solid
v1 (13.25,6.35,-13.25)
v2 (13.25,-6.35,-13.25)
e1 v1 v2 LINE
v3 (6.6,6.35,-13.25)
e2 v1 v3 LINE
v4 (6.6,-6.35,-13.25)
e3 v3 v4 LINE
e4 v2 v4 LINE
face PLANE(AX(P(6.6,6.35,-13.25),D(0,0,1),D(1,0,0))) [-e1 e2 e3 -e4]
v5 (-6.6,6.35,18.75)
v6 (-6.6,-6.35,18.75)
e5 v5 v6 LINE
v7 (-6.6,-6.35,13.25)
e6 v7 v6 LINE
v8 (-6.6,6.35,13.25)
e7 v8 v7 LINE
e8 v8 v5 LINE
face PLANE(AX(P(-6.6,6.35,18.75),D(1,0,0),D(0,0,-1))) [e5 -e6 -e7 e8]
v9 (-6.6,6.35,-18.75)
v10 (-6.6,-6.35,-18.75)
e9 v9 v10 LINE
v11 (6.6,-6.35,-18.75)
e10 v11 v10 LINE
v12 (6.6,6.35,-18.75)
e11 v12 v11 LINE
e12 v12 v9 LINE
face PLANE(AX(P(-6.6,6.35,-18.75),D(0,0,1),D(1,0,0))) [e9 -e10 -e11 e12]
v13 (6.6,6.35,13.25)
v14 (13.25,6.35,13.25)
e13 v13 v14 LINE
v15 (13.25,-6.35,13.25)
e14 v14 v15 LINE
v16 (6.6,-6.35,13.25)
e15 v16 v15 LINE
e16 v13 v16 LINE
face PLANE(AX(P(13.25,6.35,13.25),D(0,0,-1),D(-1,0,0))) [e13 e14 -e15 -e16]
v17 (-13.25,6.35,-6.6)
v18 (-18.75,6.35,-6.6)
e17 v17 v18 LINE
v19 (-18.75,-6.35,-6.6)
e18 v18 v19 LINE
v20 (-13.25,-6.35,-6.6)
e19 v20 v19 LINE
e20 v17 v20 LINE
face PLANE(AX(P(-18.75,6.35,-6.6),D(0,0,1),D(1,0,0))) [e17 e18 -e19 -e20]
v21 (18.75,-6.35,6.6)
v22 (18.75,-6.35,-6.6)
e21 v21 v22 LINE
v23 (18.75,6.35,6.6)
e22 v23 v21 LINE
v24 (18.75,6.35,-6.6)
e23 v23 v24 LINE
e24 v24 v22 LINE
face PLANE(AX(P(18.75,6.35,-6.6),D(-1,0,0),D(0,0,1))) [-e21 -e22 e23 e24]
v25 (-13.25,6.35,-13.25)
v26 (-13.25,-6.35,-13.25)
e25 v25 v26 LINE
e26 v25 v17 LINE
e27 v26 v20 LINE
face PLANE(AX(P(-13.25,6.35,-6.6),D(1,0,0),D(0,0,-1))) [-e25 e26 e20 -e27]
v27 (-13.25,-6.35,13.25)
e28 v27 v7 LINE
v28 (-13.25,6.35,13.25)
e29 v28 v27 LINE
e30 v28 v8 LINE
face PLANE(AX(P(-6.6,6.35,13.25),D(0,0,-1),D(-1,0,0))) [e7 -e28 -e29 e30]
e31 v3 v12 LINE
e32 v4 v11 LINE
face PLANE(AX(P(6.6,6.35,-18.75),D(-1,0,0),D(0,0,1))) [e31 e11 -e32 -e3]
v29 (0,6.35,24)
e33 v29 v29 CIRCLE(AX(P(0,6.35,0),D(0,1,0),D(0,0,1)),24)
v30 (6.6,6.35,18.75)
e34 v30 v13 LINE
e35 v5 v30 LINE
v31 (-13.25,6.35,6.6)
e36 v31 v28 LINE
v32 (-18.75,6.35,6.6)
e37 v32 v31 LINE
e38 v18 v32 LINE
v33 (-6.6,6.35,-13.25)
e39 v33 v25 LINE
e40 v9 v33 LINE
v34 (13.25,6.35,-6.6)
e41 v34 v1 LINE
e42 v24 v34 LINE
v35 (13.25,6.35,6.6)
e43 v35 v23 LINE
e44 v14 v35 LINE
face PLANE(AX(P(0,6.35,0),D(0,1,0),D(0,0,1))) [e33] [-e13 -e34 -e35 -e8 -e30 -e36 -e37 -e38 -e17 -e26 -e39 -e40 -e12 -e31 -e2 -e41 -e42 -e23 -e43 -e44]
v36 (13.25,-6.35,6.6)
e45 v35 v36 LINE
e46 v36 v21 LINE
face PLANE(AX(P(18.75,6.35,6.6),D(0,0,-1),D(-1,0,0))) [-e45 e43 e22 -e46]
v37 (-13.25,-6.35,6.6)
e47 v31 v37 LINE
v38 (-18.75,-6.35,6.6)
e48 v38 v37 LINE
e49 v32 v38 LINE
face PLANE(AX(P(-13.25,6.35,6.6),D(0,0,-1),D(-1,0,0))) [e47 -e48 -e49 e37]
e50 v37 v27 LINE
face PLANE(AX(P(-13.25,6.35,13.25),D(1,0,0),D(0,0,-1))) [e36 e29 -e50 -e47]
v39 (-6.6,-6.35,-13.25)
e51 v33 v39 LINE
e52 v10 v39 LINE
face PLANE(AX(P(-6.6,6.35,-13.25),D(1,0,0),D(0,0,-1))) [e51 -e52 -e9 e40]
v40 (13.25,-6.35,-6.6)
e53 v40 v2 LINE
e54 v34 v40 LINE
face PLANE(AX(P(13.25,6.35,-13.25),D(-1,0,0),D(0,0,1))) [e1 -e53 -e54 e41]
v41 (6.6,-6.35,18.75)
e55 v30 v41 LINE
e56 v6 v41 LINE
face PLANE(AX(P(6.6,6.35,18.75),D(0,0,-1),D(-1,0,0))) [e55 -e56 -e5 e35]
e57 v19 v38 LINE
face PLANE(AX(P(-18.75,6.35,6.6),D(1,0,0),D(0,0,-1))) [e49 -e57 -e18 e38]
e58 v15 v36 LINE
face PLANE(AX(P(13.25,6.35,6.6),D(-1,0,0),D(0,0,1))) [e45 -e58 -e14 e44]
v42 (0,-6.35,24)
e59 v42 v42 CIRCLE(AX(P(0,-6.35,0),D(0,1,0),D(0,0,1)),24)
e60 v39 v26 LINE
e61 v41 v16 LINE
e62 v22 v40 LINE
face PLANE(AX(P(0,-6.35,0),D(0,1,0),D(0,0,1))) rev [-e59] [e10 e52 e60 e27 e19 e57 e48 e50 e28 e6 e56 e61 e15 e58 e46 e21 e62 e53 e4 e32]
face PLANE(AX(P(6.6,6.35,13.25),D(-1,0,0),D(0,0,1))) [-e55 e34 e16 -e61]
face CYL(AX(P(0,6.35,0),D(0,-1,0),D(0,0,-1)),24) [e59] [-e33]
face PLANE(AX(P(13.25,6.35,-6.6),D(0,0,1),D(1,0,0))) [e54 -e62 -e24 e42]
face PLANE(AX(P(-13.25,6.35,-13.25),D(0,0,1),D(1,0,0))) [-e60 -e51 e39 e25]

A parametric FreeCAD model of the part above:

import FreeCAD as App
import Part
import Sketcher
from FreeCAD import Vector
Q = App.Units.Quantity

doc = App.newDocument("Part")
body = doc.addObject("PartDesign::Body", "Body")

sketch1 = body.newObject("Sketcher::SketchObject", "Sketch")
sketch1.AttachmentSupport = (doc.getObject("XZ_Plane"), [""])
sketch1.MapMode = "FlatFace"
sketch1.addGeometry([
    Part.Circle(Vector(0, 0, 0), Vector(0, 0, 1), 24),
    Part.LineSegment(Vector(-7, -13, 0), Vector(-7, -19, 0)),
    Part.LineSegment(Vector(-7, -19, 0), Vector(7, -19, 0)),
    Part.LineSegment(Vector(7, -19, 0), Vector(7, -13, 0)),
    Part.LineSegment(Vector(7, -13, 0), Vector(13, -13, 0)),
    Part.LineSegment(Vector(13, -13, 0), Vector(13, -7, 0)),
    Part.LineSegment(Vector(13, -7, 0), Vector(19, -7, 0)),
    Part.LineSegment(Vector(19, -7, 0), Vector(19, 7, 0)),
    Part.LineSegment(Vector(19, 7, 0), Vector(13, 7, 0)),
    Part.LineSegment(Vector(13, 7, 0), Vector(13, 13, 0)),
    Part.LineSegment(Vector(13, 13, 0), Vector(7, 13, 0)),
    Part.LineSegment(Vector(7, 13, 0), Vector(7, 19, 0)),
    Part.LineSegment(Vector(7, 19, 0), Vector(-7, 19, 0)),
    Part.LineSegment(Vector(-7, 19, 0), Vector(-7, 13, 0)),
    Part.LineSegment(Vector(-7, 13, 0), Vector(-13, 13, 0)),
    Part.LineSegment(Vector(-13, 13, 0), Vector(-13, 7, 0)),
    Part.LineSegment(Vector(-13, 7, 0), Vector(-19, 7, 0)),
    Part.LineSegment(Vector(-19, 7, 0), Vector(-19, -7, 0)),
    Part.LineSegment(Vector(-19, -7, 0), Vector(-13, -7, 0)),
    Part.LineSegment(Vector(-13, -7, 0), Vector(-13, -13, 0)),
    Part.LineSegment(Vector(-13, -13, 0), Vector(-7, -13, 0)),
], False)
sketch1.addConstraint([
    Sketcher.Constraint("Coincident", 1, 2, 2, 1),
    Sketcher.Constraint("Coincident", 2, 2, 3, 1),
    Sketcher.Constraint("Coincident", 3, 2, 4, 1),
    Sketcher.Constraint("Coincident", 4, 2, 5, 1),
    Sketcher.Constraint("Coincident", 5, 2, 6, 1),
    Sketcher.Constraint("Coincident", 6, 2, 7, 1),
    Sketcher.Constraint("Coincident", 7, 2, 8, 1),
    Sketcher.Constraint("Coincident", 8, 2, 9, 1),
    Sketcher.Constraint("Coincident", 9, 2, 10, 1),
    Sketcher.Constraint("Coincident", 10, 2, 11, 1),
    Sketcher.Constraint("Coincident", 11, 2, 12, 1),
    Sketcher.Constraint("Coincident", 12, 2, 13, 1),
    Sketcher.Constraint("Coincident", 13, 2, 14, 1),
    Sketcher.Constraint("Coincident", 14, 2, 15, 1),
    Sketcher.Constraint("Coincident", 15, 2, 16, 1),
    Sketcher.Constraint("Coincident", 16, 2, 17, 1),
    Sketcher.Constraint("Coincident", 17, 2, 18, 1),
    Sketcher.Constraint("Coincident", 18, 2, 19, 1),
    Sketcher.Constraint("Coincident", 19, 2, 20, 1),
    Sketcher.Constraint("Coincident", 20, 2, 1, 1),
    Sketcher.Constraint("Vertical", 1),
    Sketcher.Constraint("Horizontal", 2),
    Sketcher.Constraint("Vertical", 3),
    Sketcher.Constraint("Horizontal", 4),
    Sketcher.Constraint("Vertical", 5),
    Sketcher.Constraint("Horizontal", 6),
    Sketcher.Constraint("Vertical", 7),
    Sketcher.Constraint("Horizontal", 8),
    Sketcher.Constraint("Vertical", 9),
    Sketcher.Constraint("Horizontal", 10),
    Sketcher.Constraint("Vertical", 11),
    Sketcher.Constraint("Horizontal", 12),
    Sketcher.Constraint("Vertical", 13),
    Sketcher.Constraint("Horizontal", 14),
    Sketcher.Constraint("Vertical", 15),
    Sketcher.Constraint("Horizontal", 16),
    Sketcher.Constraint("Vertical", 17),
    Sketcher.Constraint("Horizontal", 18),
    Sketcher.Constraint("Vertical", 19),
    Sketcher.Constraint("Horizontal", 20),
    Sketcher.Constraint("Coincident", 0, 3, -1, 1),
    Sketcher.Constraint("Symmetric", 1, 2, 11, 2, -1, 1),
    Sketcher.Constraint("Symmetric", 3, 2, 13, 2, -1, 1),
    Sketcher.Constraint("Symmetric", 5, 2, 15, 2, -1, 1),
    Sketcher.Constraint("Symmetric", 7, 2, 17, 2, -1, 1),
    Sketcher.Constraint("Symmetric", 9, 2, 19, 2, -1, 1),
    Sketcher.Constraint("Symmetric", 10, 2, 13, 2, -2),
    Sketcher.Constraint("Symmetric", 8, 2, 15, 2, -2),
    Sketcher.Constraint("Equal", 18, 1),
    Sketcher.Constraint("Equal", 20, 5),
    Sketcher.Constraint("Equal", 12, 7),
    Sketcher.Constraint("Diameter", 0, Q("48 mm")),
    Sketcher.Constraint("DistanceX", 2, 1, 2, 2, Q("13.2 mm")),
    Sketcher.Constraint("DistanceX", 6, 1, 6, 2, Q("5.5 mm")),
    Sketcher.Constraint("DistanceX", 4, 1, 4, 2, Q("6.65 mm")),
])
pad1 = body.newObject("PartDesign::Pad", "Pad")
pad1.Profile = sketch1
pad1.Length = 12.7
pad1.Midplane = True

doc.recompute()
